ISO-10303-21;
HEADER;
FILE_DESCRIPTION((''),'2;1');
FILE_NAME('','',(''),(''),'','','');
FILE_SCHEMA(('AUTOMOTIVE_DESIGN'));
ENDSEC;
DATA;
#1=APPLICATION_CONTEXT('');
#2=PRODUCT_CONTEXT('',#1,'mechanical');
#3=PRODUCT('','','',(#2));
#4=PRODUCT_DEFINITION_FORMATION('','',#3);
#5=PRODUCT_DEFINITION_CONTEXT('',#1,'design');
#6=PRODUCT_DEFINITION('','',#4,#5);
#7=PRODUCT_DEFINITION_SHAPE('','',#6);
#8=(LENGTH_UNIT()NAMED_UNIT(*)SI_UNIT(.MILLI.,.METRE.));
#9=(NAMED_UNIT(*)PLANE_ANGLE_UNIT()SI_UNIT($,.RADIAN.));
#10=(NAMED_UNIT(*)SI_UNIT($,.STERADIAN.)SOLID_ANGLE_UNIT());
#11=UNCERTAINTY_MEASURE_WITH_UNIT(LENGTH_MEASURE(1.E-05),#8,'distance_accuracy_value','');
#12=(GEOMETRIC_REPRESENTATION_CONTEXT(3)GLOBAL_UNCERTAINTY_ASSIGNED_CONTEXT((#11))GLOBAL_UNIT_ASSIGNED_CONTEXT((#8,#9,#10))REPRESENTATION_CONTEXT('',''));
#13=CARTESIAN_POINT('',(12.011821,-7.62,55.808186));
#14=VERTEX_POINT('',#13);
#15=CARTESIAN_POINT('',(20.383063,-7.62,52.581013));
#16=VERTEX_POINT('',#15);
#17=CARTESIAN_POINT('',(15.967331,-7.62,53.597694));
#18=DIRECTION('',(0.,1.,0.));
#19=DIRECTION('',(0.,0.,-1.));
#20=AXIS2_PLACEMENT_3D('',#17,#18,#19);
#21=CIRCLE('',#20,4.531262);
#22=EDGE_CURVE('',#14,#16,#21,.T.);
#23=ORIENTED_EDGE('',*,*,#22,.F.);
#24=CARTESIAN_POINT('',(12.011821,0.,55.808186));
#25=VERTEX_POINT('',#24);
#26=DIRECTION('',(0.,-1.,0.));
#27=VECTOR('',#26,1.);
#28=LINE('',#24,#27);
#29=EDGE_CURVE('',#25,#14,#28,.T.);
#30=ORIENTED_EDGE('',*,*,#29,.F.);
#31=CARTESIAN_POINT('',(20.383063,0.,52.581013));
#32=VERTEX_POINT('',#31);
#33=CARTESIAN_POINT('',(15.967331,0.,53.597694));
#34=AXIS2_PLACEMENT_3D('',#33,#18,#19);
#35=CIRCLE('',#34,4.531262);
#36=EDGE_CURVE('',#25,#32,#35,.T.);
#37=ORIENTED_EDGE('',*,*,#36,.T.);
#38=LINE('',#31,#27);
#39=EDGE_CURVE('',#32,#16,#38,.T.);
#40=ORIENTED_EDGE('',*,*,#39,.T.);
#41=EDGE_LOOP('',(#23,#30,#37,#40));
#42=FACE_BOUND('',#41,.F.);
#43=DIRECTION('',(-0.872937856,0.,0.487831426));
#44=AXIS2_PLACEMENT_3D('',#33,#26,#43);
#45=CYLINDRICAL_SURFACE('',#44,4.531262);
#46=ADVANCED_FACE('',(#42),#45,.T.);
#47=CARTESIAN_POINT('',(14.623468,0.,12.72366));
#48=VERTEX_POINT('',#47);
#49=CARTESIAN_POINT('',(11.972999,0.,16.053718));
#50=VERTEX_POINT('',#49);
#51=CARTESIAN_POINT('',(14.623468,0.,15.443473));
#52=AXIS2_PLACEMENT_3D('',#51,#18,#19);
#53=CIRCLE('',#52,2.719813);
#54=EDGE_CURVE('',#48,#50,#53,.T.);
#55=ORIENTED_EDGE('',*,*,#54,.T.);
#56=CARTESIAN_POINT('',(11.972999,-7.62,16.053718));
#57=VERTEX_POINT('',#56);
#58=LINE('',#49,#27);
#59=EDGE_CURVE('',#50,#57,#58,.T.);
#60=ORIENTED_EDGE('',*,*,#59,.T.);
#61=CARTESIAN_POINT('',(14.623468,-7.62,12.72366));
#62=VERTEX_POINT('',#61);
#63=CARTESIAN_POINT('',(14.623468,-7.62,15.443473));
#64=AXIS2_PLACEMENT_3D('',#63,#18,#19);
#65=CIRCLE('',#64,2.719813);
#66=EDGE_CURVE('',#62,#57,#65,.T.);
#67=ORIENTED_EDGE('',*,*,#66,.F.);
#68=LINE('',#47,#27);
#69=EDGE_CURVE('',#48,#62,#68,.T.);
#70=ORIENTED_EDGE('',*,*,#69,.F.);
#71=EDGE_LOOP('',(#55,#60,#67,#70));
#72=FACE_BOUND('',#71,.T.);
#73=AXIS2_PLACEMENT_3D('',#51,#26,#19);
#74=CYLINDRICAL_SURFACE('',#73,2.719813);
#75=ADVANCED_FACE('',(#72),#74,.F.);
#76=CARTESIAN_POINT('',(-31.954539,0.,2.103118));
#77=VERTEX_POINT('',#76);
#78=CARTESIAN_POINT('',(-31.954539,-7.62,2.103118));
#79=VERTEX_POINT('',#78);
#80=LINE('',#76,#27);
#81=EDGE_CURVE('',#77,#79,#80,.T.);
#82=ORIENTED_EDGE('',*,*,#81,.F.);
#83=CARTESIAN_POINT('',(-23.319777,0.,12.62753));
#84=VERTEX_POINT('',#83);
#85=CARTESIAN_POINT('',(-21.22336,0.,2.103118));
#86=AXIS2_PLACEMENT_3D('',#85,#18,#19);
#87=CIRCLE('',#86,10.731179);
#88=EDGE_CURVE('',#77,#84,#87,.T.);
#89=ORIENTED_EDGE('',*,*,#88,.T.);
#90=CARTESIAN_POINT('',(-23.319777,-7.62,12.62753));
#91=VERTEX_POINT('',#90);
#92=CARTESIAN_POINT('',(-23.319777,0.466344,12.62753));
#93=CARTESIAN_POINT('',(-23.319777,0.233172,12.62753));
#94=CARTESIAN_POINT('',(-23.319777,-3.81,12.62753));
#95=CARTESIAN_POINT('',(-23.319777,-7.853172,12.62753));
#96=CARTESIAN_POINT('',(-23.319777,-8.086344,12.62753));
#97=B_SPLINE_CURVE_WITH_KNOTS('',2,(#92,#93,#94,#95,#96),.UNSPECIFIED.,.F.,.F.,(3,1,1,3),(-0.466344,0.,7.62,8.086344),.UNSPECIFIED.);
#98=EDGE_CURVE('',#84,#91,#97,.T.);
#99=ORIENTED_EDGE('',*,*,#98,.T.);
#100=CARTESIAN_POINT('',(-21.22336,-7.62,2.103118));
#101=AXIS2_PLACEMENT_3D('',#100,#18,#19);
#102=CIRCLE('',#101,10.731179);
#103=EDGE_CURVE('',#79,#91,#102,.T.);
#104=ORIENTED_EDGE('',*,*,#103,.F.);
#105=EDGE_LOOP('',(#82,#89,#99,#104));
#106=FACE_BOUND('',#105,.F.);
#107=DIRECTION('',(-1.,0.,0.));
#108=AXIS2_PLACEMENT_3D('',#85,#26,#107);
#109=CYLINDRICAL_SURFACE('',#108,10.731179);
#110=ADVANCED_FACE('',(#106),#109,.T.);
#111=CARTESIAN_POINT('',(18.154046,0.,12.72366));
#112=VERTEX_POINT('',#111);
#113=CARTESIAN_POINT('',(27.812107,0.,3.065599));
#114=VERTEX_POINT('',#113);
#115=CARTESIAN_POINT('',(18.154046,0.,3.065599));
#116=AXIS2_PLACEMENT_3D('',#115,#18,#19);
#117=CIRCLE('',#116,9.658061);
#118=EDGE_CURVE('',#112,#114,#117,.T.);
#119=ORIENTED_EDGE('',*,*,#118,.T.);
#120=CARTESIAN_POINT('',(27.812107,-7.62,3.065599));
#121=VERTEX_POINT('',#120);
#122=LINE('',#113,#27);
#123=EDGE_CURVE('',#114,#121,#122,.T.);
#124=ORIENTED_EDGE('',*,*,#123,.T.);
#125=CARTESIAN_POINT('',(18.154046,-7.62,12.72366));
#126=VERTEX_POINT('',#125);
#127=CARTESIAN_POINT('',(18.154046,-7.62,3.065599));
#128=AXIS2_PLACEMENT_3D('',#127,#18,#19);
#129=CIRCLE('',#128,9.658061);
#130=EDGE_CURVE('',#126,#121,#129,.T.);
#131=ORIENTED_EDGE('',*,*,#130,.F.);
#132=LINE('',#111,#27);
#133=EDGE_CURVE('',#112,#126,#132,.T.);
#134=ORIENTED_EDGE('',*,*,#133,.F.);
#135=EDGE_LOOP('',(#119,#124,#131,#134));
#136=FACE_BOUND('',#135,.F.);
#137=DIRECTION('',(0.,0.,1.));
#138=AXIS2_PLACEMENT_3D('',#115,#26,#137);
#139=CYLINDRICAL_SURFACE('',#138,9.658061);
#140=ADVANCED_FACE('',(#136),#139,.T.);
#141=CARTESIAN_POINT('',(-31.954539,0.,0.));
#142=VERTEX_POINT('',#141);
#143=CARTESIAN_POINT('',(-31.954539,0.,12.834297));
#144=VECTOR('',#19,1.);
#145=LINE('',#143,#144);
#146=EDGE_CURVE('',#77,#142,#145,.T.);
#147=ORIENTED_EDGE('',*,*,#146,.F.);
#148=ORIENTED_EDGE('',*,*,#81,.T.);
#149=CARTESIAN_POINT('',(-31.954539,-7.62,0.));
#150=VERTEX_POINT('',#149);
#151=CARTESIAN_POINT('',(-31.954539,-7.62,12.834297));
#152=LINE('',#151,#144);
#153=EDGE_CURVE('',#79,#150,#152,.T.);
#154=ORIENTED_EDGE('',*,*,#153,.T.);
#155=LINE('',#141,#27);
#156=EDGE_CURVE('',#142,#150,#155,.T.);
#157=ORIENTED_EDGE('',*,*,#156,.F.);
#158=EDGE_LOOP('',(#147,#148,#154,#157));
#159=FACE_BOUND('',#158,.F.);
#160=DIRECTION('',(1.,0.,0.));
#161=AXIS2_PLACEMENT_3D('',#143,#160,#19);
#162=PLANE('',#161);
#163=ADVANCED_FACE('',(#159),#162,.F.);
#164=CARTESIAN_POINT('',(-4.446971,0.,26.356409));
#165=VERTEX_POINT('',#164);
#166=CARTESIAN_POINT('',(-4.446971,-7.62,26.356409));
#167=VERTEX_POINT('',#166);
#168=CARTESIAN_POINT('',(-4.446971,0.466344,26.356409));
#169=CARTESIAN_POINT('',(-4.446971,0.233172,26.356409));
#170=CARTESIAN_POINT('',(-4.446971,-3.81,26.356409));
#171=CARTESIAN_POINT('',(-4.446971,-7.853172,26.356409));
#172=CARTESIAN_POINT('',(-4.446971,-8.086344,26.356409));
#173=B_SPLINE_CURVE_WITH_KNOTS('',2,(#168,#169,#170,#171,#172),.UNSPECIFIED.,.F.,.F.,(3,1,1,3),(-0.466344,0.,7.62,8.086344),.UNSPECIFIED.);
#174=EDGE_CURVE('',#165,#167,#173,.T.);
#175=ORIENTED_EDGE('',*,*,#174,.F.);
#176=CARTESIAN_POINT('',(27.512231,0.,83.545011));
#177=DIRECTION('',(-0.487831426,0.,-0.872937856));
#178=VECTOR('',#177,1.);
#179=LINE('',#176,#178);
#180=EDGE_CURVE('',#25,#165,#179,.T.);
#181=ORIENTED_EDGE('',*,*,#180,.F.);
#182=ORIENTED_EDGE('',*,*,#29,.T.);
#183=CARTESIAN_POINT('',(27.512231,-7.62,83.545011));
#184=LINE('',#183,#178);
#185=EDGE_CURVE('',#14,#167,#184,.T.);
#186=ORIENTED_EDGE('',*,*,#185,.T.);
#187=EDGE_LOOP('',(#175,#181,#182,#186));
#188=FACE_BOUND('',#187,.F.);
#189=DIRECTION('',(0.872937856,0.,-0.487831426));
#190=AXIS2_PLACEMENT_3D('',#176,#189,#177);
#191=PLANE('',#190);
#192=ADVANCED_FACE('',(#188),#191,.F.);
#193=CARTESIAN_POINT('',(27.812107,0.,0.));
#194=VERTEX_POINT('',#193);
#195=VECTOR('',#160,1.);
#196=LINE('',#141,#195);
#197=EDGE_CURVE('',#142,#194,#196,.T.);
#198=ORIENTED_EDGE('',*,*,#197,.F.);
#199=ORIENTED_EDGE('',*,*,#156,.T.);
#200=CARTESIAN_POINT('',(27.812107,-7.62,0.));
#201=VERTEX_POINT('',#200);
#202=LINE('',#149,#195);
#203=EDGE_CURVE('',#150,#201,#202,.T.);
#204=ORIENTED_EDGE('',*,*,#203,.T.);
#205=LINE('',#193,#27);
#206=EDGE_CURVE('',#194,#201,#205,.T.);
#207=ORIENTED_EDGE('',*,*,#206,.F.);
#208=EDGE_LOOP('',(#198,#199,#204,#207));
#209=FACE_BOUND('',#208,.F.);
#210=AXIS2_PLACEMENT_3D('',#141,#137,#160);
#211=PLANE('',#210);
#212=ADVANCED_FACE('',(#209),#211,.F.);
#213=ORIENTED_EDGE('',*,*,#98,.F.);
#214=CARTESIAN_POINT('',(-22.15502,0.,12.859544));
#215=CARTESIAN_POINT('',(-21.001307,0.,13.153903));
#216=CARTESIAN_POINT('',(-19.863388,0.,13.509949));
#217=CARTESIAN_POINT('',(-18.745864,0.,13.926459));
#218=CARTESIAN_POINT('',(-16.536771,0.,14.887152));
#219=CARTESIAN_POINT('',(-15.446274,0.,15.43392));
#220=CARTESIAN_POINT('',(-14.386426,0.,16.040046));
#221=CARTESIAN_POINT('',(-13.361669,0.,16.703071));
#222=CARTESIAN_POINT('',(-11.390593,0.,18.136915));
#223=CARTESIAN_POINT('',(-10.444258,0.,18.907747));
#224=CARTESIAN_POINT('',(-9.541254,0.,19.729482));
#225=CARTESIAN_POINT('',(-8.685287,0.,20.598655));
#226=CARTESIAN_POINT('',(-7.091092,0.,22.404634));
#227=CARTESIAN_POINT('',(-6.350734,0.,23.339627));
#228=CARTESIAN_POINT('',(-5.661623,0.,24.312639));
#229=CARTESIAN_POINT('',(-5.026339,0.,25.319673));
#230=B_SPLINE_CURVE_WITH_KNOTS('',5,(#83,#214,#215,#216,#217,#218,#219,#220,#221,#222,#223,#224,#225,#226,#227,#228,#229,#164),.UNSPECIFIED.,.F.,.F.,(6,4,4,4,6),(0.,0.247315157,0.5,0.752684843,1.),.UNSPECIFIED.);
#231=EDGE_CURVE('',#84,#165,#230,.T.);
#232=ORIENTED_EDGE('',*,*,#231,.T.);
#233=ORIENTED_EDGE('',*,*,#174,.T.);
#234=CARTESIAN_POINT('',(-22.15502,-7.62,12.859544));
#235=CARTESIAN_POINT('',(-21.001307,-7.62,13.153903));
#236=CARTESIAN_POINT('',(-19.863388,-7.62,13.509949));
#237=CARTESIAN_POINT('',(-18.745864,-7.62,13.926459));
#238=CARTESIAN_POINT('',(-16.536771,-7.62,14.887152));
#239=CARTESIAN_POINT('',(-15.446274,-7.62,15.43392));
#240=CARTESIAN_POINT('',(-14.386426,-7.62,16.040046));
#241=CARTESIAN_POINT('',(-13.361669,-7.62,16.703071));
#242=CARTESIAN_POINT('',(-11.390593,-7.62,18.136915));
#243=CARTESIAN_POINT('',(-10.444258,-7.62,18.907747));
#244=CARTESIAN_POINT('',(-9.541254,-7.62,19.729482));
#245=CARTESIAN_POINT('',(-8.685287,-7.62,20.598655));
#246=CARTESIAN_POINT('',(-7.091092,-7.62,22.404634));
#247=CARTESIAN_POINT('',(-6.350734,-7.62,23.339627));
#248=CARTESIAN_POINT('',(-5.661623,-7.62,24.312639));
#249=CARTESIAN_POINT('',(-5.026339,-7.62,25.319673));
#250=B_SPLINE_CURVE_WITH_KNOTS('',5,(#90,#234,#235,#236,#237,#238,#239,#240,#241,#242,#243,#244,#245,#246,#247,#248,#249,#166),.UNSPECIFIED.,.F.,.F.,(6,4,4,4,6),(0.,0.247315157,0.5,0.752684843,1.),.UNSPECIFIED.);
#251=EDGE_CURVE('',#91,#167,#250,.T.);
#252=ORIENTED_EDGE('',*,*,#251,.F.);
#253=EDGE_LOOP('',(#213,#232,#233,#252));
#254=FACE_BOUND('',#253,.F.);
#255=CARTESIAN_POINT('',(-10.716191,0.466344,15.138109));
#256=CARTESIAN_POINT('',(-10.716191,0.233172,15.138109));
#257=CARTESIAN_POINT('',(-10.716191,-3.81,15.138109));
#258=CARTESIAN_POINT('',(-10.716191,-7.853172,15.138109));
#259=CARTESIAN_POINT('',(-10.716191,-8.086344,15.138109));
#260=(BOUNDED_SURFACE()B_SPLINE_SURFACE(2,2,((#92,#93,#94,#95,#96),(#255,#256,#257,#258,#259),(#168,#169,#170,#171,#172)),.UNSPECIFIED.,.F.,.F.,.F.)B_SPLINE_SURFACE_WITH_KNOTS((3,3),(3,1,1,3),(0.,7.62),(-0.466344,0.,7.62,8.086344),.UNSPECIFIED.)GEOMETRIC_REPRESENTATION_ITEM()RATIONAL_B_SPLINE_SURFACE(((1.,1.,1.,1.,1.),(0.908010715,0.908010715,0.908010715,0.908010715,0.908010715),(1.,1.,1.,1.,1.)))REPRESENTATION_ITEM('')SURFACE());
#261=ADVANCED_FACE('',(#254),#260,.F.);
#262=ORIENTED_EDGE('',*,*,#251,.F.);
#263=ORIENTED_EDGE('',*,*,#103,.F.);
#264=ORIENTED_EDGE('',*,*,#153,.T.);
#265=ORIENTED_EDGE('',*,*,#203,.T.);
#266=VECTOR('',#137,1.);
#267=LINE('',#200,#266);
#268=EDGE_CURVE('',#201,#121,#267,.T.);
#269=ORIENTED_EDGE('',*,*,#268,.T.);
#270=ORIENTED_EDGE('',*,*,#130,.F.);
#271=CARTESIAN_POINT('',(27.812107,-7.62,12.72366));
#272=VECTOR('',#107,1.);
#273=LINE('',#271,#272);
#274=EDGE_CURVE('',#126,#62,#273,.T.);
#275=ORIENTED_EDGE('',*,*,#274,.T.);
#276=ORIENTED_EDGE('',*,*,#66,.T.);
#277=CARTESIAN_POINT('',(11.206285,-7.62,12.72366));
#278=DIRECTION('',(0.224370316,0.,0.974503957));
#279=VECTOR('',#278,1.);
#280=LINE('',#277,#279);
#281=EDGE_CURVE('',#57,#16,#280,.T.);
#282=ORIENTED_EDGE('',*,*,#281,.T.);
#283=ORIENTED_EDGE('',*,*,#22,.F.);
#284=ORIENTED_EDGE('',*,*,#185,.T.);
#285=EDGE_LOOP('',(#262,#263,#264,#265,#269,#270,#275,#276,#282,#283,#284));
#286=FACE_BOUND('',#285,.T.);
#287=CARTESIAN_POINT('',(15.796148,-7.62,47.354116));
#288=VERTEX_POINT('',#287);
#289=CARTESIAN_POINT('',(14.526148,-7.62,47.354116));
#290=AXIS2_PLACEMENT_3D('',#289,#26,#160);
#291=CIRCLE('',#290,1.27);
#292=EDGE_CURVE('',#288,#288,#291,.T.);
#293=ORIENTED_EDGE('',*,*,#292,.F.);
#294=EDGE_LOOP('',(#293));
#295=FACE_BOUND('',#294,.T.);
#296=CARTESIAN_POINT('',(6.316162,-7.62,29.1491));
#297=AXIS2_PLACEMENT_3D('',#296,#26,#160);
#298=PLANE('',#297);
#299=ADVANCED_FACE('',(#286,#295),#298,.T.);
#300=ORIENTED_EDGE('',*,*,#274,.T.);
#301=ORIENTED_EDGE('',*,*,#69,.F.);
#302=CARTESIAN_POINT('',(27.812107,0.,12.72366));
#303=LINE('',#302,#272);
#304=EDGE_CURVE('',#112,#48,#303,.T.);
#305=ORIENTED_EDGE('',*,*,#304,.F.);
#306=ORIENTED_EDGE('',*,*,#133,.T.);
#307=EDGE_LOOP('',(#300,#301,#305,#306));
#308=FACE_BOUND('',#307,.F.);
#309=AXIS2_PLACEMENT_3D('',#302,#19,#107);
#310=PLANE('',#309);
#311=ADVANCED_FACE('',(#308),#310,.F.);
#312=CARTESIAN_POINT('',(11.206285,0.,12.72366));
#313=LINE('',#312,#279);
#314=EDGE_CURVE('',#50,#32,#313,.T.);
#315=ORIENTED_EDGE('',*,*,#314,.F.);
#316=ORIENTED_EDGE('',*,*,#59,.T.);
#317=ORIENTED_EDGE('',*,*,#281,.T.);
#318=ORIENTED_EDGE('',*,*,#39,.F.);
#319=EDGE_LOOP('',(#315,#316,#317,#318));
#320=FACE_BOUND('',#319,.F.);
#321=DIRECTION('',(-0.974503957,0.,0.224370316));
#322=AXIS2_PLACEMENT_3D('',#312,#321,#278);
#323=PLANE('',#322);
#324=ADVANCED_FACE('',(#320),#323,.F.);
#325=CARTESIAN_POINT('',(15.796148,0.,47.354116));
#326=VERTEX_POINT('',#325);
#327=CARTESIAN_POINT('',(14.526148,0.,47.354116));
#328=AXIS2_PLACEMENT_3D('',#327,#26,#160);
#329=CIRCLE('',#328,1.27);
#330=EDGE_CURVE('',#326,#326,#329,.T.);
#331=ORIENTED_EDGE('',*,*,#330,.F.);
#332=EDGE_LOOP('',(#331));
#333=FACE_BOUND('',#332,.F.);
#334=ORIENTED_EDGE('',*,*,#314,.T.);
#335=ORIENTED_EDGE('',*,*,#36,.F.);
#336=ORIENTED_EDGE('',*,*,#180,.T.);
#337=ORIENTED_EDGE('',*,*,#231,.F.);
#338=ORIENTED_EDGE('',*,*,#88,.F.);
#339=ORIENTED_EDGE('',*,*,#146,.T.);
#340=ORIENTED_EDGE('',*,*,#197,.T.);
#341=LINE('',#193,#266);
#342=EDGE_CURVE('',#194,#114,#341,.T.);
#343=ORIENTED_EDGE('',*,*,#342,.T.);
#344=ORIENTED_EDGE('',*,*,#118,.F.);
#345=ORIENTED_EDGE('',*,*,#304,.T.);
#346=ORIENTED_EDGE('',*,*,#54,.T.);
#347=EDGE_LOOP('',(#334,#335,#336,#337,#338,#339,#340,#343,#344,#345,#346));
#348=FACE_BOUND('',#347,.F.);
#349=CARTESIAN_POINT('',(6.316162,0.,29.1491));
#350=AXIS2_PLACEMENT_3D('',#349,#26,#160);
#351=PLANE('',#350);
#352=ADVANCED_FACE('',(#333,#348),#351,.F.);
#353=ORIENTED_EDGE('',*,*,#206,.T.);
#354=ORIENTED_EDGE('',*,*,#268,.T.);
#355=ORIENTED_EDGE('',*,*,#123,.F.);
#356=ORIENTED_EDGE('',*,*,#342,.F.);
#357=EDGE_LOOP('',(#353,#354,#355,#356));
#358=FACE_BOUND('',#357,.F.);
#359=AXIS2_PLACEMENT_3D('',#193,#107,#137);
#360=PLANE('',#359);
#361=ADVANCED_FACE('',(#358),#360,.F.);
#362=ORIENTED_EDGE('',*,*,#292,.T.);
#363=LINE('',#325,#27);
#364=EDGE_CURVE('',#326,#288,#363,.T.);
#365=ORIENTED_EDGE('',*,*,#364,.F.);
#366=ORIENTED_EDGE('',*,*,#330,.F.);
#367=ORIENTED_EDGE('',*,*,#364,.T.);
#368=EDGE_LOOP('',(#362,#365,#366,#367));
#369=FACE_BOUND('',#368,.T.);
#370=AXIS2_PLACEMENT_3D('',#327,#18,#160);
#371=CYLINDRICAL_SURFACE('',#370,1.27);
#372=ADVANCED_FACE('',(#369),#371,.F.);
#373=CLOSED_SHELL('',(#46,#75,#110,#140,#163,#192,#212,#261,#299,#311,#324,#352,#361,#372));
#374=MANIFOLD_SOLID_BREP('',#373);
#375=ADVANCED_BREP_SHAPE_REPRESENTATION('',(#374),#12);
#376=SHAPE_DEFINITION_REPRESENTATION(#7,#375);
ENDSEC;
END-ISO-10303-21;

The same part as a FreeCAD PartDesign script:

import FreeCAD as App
import Part
import Sketcher
Q = App.Units.Quantity


def edges_at(feature, points):
    """Names of the edges that pass closest to the given points."""
    edges = feature.Shape.Edges
    near = lambda p: min(range(len(edges)), key=lambda i: edges[i].distToShape(Part.Vertex(*p))[0])
    return sorted({f"Edge{near(p) + 1}" for p in points})


def add_polygon(sketch, points):
    """Adds a closed chain of lines whose ends are joined by coincident constraints."""
    first, n = sketch.GeometryCount, len(points)
    for a, b in zip(points, points[1:] + points[:1]):
        sketch.addGeometry(Part.LineSegment(App.Vector(*a, 0), App.Vector(*b, 0)), False)
    for i in range(n):
        sketch.addConstraint(Sketcher.Constraint("Coincident", first + i, 2, first + (i + 1) % n, 1))

doc = App.newDocument("Part")
body = doc.addObject("PartDesign::Body", "Body")

# Sketch on XZ plane
sketch1 = doc.addObject("Sketcher::SketchObject", "Sketch")
body.addObject(sketch1)
sketch1.AttachmentSupport = (doc.XZ_Plane, [""])
sketch1.MapMode = "FlatFace"
add_polygon(sketch1, [(-31.954539, 12.834297), (-31.954539, 0), (27.812107, 0), (27.812107, 12.72366), (11.206285, 12.72366), (27.512231, 83.545011), (-12.00365, 12.834297)])  # lines 0-6
sketch1.addGeometry(Part.Circle(App.Vector(14.526148, 47.354116, 0), App.Vector(0, 0, 1), 1.27), False)  # 7
sketch1.addConstraint([
    Sketcher.Constraint("Vertical", 0),
    Sketcher.Constraint("Horizontal", 1),
    Sketcher.Constraint("Vertical", 2),
    Sketcher.Constraint("Horizontal", 3),
    Sketcher.Constraint("Horizontal", 6),
    Sketcher.Constraint("PointOnObject", 0, 2, -1),
    Sketcher.Constraint("Diameter", 7, Q("0.1 in")),
    Sketcher.Constraint("DistanceX", 6, 2, 6, 1, Q("19.950889 mm")),
    Sketcher.Constraint("DistanceY", 2, 1, 2, 2, Q("12.72366 mm")),
    Sketcher.Constraint("DistanceX", 1, 1, 1, 2, Q("59.766646 mm")),
    Sketcher.Constraint("DistanceX", 3, 2, 3, 1, Q("16.605822 mm")),
    Sketcher.Constraint("DistanceY", 0, 2, 0, 1, Q("12.834297 mm")),
    Sketcher.Constraint("DistanceX", 0, 2, -1, 1, Q("31.954539 mm")),
    Sketcher.Constraint("DistanceX", -1, 1, 4, 2, Q("27.512231 mm")),
    Sketcher.Constraint("DistanceY", -1, 1, 4, 2, Q("83.545011 mm")),
    Sketcher.Constraint("DistanceX", 7, 3, 1, 2, Q("13.285959 mm")),
    Sketcher.Constraint("DistanceY", 5, 2, 7, 3, Q("34.519819 mm")),
])
pad1 = doc.addObject("PartDesign::Pad", "Pad")
body.addObject(pad1)
pad1.Profile = sketch1
pad1.Length = Q("0.3 in")
doc.recompute()

fillet = doc.addObject("PartDesign::Fillet", "Fillet")
body.addObject(fillet)
fillet.Base = (pad1, edges_at(pad1, [(-31.955, -3.81, 12.834)]))
fillet.Radius = 10.731179
doc.recompute()

fillet2 = doc.addObject("PartDesign::Fillet", "Fillet001")
body.addObject(fillet2)
fillet2.Base = (fillet, edges_at(fillet, [(-12.004, -3.81, 12.834)]))
fillet2.Radius = 27.853237
doc.recompute()

fillet3 = doc.addObject("PartDesign::Fillet", "Fillet002")
body.addObject(fillet3)
fillet3.Base = (fillet2, edges_at(fillet2, [(27.512, -3.81, 83.545)]))
fillet3.Radius = 4.531262
doc.recompute()

fillet4 = doc.addObject("PartDesign::Fillet", "Fillet003")
body.addObject(fillet4)
fillet4.Base = (fillet3, edges_at(fillet3, [(27.812, -3.81, 12.724)]))
fillet4.Radius = 9.658061
doc.recompute()

fillet5 = doc.addObject("PartDesign::Fillet", "Fillet004")
body.addObject(fillet5)
fillet5.Base = (fillet4, edges_at(fillet4, [(11.206, -3.81, 12.724)]))
fillet5.Radius = 2.719813

doc.recompute()
